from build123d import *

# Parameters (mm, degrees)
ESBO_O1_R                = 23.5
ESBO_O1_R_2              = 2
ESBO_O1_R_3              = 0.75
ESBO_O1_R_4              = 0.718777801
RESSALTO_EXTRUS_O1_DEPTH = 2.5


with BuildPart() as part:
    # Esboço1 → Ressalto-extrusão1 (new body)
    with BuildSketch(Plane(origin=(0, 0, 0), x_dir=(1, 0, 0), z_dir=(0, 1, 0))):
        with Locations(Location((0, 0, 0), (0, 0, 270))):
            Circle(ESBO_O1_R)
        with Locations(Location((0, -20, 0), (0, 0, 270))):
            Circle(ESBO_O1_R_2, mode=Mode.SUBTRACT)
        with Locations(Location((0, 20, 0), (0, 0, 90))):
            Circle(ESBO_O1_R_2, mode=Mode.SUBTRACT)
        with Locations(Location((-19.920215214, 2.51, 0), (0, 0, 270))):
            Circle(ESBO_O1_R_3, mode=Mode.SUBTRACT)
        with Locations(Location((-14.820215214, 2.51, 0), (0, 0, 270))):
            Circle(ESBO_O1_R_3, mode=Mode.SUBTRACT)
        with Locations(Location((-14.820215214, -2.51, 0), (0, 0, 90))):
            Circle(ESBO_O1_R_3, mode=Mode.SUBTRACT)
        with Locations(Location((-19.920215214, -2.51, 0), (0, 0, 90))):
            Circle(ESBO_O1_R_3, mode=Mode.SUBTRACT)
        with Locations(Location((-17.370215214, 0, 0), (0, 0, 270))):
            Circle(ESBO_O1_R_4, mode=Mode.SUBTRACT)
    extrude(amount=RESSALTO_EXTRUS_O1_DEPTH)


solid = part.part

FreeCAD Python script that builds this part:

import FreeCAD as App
import Part
import Sketcher
from FreeCAD import Vector
Q = App.Units.Quantity

doc = App.newDocument("Part")
body = doc.addObject("PartDesign::Body", "Body")

sketch1 = body.newObject("Sketcher::SketchObject", "Sketch")
sketch1.AttachmentSupport = (doc.getObject("XZ_Plane"), [""])
sketch1.MapMode = "FlatFace"
sketch1.addGeometry([
    Part.Circle(Vector(0, 0, 0), Vector(0, 0, 1), 23.5),
    Part.Circle(Vector(-19.9, -2.5, 0), Vector(0, 0, 1), 0.8),
    Part.Circle(Vector(-14.8, -2.5, 0), Vector(0, 0, 1), 0.8),
    Part.Circle(Vector(-19.9, 2.5, 0), Vector(0, 0, 1), 0.8),
    Part.Circle(Vector(-17.4, 0, 0), Vector(0, 0, 1), 0.7),
    Part.Circle(Vector(-14.8, 2.5, 0), Vector(0, 0, 1), 0.8),
    Part.Circle(Vector(0, -20, 0), Vector(0, 0, 1), 2),
    Part.Circle(Vector(0, 20, 0), Vector(0, 0, 1), 2),
], False)
sketch1.addConstraint([
    Sketcher.Constraint("Coincident", 0, 3, -1, 1),
    Sketcher.Constraint("Equal", 1, 2),
    Sketcher.Constraint("Equal", 2, 3),
    Sketcher.Constraint("Equal", 3, 5),
    Sketcher.Constraint("Equal", 6, 7),
    Sketcher.Constraint("Symmetric", 6, 3, 7, 3, -1, 1),
    Sketcher.Constraint("Symmetric", 1, 3, 3, 3, -1),
    Sketcher.Constraint("Symmetric", 2, 3, 5, 3, -1),
    Sketcher.Constraint("PointOnObject", 4, 3, -1),
    Sketcher.Constraint("PointOnObject", 6, 3, -2),
    Sketcher.Constraint("Horizontal", 1, 3, 2, 3),
    Sketcher.Constraint("Diameter", 0, Q("47 mm")),
    Sketcher.Constraint("Diameter", 6, Q("4 mm")),
    Sketcher.Constraint("Diameter", 1, Q("1.5 mm")),
    Sketcher.Constraint("DistanceY", 6, 3, -1, 1, Q("20 mm")),
    Sketcher.Constraint("DistanceX", 1, 3, 2, 3, Q("5.1 mm")),
    Sketcher.Constraint("DistanceY", 1, 3, -1, 1, Q("2.51 mm")),
    Sketcher.Constraint("DistanceX", 1, 3, 4, 3, Q("2.55 mm")),
    Sketcher.Constraint("Diameter", 4, Q("1.437556 mm")),
    Sketcher.Constraint("DistanceX", 1, 3, -1, 1, Q("19.920215 mm")),
])
pad1 = body.newObject("PartDesign::Pad", "Pad")
pad1.Profile = sketch1
pad1.Length = 2.5
pad1.Reversed = True

doc.recompute()
